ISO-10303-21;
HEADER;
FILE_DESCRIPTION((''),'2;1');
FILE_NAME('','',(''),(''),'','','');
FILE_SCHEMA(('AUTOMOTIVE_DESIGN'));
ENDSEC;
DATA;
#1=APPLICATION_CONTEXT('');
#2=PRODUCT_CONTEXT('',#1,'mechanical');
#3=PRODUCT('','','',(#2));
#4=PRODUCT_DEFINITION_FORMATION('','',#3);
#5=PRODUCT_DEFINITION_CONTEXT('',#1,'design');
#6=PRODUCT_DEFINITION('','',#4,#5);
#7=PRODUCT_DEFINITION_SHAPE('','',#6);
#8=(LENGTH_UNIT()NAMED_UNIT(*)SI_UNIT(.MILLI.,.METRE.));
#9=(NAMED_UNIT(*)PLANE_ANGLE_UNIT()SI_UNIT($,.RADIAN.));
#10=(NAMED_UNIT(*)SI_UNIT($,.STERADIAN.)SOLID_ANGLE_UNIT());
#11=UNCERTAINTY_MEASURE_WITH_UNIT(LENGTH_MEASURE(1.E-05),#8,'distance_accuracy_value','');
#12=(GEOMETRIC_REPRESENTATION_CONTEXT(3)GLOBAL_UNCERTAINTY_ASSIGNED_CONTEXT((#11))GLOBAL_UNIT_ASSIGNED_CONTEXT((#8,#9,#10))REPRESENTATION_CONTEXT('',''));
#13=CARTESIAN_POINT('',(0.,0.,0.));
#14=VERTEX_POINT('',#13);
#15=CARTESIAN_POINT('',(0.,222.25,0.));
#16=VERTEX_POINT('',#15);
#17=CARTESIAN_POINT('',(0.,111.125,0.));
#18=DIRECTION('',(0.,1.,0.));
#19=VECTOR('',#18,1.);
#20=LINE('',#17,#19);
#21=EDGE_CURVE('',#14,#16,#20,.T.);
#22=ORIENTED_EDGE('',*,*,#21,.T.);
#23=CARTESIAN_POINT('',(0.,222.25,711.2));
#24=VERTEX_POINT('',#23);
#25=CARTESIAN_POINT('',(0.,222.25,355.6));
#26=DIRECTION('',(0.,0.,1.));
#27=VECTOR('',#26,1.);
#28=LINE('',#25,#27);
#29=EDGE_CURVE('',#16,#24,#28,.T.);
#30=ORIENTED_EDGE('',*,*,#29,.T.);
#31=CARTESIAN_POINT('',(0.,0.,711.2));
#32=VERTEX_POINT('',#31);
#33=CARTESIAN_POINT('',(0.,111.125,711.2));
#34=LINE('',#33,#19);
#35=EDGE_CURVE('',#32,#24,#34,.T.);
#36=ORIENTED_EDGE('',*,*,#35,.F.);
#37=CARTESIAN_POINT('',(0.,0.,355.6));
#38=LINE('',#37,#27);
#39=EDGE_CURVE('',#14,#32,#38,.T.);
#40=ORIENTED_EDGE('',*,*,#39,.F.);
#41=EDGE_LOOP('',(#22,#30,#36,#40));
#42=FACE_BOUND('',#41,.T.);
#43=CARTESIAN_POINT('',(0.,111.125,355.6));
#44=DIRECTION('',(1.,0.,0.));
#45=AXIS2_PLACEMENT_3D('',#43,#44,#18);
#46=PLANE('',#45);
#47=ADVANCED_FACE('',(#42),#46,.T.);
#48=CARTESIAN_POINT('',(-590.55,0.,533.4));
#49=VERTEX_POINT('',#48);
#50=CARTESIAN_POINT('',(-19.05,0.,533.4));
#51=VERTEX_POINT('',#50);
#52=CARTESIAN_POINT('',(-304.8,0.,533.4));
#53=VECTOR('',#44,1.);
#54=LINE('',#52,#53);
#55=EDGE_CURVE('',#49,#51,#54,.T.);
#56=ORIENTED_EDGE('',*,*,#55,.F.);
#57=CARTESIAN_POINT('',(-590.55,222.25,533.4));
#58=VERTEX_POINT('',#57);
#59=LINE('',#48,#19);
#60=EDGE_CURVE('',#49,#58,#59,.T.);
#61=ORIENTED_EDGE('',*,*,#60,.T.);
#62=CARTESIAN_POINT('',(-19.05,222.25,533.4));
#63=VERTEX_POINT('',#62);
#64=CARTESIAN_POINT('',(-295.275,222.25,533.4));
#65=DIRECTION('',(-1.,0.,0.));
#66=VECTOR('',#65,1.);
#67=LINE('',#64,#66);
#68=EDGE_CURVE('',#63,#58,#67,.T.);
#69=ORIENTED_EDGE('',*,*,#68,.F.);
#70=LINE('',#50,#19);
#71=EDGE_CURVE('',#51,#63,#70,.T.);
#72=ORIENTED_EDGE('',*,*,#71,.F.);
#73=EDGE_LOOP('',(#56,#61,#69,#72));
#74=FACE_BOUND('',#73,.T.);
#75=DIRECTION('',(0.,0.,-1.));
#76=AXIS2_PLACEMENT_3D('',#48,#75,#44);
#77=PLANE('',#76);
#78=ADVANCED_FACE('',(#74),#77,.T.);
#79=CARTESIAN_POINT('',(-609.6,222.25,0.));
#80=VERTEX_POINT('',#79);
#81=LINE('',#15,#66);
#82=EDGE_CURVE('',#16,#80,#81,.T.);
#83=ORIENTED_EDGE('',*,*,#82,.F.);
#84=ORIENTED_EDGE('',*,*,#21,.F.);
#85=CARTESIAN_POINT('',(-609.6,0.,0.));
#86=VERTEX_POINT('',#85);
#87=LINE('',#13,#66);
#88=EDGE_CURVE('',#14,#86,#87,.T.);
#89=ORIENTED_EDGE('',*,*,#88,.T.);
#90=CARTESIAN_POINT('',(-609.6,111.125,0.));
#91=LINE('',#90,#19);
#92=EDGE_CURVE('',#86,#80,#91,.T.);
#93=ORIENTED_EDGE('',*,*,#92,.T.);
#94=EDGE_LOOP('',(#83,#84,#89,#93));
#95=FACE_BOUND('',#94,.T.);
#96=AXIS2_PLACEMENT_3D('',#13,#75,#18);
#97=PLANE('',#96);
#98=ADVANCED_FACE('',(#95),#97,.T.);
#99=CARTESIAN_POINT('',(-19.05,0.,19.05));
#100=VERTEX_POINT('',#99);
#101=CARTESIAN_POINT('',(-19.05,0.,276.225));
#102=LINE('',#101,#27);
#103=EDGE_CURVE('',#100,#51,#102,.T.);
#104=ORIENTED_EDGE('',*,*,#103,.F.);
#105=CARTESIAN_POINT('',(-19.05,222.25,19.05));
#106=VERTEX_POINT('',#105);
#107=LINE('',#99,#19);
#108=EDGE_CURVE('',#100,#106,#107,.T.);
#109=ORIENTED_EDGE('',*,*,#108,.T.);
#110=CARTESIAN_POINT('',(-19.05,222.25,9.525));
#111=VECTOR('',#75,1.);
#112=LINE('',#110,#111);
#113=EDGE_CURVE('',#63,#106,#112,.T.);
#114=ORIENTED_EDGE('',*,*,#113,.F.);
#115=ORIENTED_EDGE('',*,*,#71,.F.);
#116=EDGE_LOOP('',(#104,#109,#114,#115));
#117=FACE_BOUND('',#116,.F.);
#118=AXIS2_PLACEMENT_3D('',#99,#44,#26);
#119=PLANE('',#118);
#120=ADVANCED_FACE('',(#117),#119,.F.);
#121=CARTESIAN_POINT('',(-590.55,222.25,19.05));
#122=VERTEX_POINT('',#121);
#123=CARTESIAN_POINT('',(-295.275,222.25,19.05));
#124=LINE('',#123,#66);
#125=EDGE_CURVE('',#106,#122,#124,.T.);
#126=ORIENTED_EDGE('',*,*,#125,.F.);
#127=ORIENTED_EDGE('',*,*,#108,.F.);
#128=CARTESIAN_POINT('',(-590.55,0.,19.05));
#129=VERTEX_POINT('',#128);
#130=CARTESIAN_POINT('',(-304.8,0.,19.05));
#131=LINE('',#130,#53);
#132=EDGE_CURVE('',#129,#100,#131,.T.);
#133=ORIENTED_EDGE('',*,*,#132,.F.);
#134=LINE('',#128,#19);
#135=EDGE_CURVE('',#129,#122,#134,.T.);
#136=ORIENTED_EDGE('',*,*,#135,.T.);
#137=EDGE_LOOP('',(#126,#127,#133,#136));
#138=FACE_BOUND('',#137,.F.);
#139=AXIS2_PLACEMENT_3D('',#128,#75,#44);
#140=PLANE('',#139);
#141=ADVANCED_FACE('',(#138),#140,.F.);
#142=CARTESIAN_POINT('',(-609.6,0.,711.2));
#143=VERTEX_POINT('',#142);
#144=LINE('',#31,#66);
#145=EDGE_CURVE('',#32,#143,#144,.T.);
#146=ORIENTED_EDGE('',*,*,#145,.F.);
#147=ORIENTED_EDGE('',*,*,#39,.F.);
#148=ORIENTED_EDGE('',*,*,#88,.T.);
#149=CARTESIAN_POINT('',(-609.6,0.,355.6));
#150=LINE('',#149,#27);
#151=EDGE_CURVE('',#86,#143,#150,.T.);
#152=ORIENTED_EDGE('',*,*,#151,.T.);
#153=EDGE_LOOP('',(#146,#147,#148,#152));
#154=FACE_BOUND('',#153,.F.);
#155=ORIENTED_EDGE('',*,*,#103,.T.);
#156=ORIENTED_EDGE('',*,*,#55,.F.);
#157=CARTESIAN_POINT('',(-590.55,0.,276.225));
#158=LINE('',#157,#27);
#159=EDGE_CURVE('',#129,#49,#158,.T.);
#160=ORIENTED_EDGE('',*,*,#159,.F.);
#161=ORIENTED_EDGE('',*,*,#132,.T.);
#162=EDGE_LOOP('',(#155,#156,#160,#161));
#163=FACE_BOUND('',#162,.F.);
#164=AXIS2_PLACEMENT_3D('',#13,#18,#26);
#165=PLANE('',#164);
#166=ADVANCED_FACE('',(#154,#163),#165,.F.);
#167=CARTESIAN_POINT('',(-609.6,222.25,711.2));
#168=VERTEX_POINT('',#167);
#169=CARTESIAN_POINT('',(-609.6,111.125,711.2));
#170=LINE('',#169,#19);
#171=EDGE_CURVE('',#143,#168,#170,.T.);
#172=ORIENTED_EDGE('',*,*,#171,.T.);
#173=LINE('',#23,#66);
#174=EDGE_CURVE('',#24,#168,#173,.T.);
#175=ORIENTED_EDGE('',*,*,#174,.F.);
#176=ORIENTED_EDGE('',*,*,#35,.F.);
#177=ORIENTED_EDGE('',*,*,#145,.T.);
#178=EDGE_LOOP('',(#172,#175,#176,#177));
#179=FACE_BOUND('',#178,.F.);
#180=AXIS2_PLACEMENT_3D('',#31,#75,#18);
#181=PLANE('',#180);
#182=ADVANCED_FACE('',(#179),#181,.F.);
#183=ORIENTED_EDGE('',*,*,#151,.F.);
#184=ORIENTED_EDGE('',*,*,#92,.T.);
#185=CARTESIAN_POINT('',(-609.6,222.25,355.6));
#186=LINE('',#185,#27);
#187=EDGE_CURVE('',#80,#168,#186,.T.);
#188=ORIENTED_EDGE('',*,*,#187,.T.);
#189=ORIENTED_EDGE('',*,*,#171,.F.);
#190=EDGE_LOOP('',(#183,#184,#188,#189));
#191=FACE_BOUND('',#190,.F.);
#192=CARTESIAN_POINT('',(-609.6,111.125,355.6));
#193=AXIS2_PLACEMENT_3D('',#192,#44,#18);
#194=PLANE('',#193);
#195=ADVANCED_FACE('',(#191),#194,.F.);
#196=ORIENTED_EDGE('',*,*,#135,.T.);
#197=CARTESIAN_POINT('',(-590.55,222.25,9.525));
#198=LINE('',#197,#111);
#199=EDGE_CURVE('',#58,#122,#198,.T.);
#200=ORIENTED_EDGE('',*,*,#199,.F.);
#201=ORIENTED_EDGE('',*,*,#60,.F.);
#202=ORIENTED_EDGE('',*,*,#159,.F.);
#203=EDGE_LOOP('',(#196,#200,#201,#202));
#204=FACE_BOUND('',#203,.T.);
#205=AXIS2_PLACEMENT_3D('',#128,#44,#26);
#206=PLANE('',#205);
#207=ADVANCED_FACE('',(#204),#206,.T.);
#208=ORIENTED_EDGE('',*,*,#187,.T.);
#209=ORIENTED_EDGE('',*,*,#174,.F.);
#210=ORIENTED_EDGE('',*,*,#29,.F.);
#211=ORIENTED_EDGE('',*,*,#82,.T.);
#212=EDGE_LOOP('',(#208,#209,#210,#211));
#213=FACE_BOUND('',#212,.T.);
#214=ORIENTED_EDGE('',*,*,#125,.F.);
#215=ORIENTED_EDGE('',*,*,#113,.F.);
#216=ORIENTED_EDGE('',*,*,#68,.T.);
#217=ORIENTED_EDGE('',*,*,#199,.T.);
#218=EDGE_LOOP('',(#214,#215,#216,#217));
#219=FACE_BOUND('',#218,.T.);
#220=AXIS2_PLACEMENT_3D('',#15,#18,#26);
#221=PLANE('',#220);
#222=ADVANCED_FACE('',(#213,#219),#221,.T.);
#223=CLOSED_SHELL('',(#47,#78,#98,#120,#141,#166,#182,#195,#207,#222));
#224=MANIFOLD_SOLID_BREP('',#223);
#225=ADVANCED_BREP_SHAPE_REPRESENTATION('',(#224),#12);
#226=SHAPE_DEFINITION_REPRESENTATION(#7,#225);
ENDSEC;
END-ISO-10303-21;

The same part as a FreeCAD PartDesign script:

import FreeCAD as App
import Part
import Sketcher

V = App.Vector
Q = App.Units.Quantity

doc = App.newDocument("Part")
params = doc.addObject("Spreadsheet::Sheet", "Params")
for row, (alias, value) in enumerate([
    ("sketch1_height", "28 in"),
    ("sketch1_width", "8.75 in"),
    ("pad1_length", "24 in"),
    ("sketch2_width", "22.5 in"),
    ("sketch2_height", "20.25 in"),
    ("pocket1_length", "11.25 in"),
    ("sketch3_width", "22.5 in"),
    ("sketch3_height", "2.5 in"),
    ("pocket2_length", "6.25 in"),
], start=1):
    params.set(f"A{row}", alias)
    params.set(f"B{row}", "=" + value)
    params.setAlias(f"B{row}", alias)

body = doc.addObject("PartDesign::Body", "Body")

# Sketch on YZ plane
sketch1 = doc.addObject("Sketcher::SketchObject", "Sketch")
body.addObject(sketch1)
sketch1.AttachmentSupport = (doc.YZ_Plane, [""])
sketch1.MapMode = "FlatFace"
sketch1.addGeometry([
    Part.LineSegment(V(0, 711, 0), V(0, 0, 0)),
    Part.LineSegment(V(0, 0, 0), V(222, 0, 0)),
    Part.LineSegment(V(222, 0, 0), V(222, 711, 0)),
    Part.LineSegment(V(222, 711, 0), V(0, 711, 0)),
], False)
sketch1.addConstraint([
    Sketcher.Constraint("Coincident", 0, 2, 1, 1),
    Sketcher.Constraint("Coincident", 1, 2, 2, 1),
    Sketcher.Constraint("Coincident", 2, 2, 3, 1),
    Sketcher.Constraint("Coincident", 3, 2, 0, 1),
    Sketcher.Constraint("Vertical", 0),
    Sketcher.Constraint("Horizontal", 1),
    Sketcher.Constraint("Vertical", 2),
    Sketcher.Constraint("Horizontal", 3),
    Sketcher.Constraint("Coincident", 0, 2, -1, 1),
    Sketcher.Constraint("DistanceY", 0, 2, 0, 1, Q("28 in")),
    Sketcher.Constraint("DistanceX", 1, 1, 1, 2, Q("8.75 in")),
])
sketch1.setExpression("Constraints[9]", "Params.sketch1_height")
sketch1.setExpression("Constraints[10]", "Params.sketch1_width")
pad1 = doc.addObject("PartDesign::Pad", "Pad")
body.addObject(pad1)
pad1.Profile = sketch1
pad1.setExpression("Length", "Params.pad1_length")
pad1.Reversed = True

# Sketch on XZ plane
sketch2 = doc.addObject("Sketcher::SketchObject", "Sketch001")
body.addObject(sketch2)
sketch2.AttachmentSupport = (doc.XZ_Plane, [""])
sketch2.MapMode = "FlatFace"
sketch2.addGeometry([
    Part.LineSegment(V(-591, 533, 0), V(-591, 19, 0)),
    Part.LineSegment(V(-591, 19, 0), V(-19, 19, 0)),
    Part.LineSegment(V(-19, 19, 0), V(-19, 533, 0)),
    Part.LineSegment(V(-19, 533, 0), V(-591, 533, 0)),
], False)
sketch2.addConstraint([
    Sketcher.Constraint("Coincident", 0, 2, 1, 1),
    Sketcher.Constraint("Coincident", 1, 2, 2, 1),
    Sketcher.Constraint("Coincident", 2, 2, 3, 1),
    Sketcher.Constraint("Coincident", 3, 2, 0, 1),
    Sketcher.Constraint("Vertical", 0),
    Sketcher.Constraint("Horizontal", 1),
    Sketcher.Constraint("Vertical", 2),
    Sketcher.Constraint("Horizontal", 3),
    Sketcher.Constraint("DistanceX", 1, 1, 1, 2, Q("22.5 in")),
    Sketcher.Constraint("DistanceY", -1, 1, 2, 2, Q("21 in")),
    Sketcher.Constraint("DistanceY", 0, 2, 0, 1, Q("20.25 in")),
    Sketcher.Constraint("DistanceX", 0, 2, -1, 1, Q("23.25 in")),
])
sketch2.setExpression("Constraints[8]", "Params.sketch2_width")
sketch2.setExpression("Constraints[10]", "Params.sketch2_height")
pocket1 = doc.addObject("PartDesign::Pocket", "Pocket")
body.addObject(pocket1)
pocket1.Profile = sketch2
pocket1.setExpression("Length", "Params.pocket1_length")

# Sketch on XY plane
sketch3 = doc.addObject("Sketcher::SketchObject", "Sketch002")
body.addObject(sketch3)
sketch3.AttachmentSupport = (doc.XY_Plane, [""])
sketch3.MapMode = "FlatFace"
sketch3.AttachmentOffset = App.Placement(V(0, 0, 21 * 25.4), App.Rotation())
sketch3.addGeometry([
    Part.LineSegment(V(-591, 222, 0), V(-591, 286, 0)),
    Part.LineSegment(V(-591, 286, 0), V(-19, 286, 0)),
    Part.LineSegment(V(-19, 286, 0), V(-19, 222, 0)),
    Part.LineSegment(V(-19, 222, 0), V(-591, 222, 0)),
], False)
sketch3.addConstraint([
    Sketcher.Constraint("Coincident", 0, 2, 1, 1),
    Sketcher.Constraint("Coincident", 1, 2, 2, 1),
    Sketcher.Constraint("Coincident", 2, 2, 3, 1),
    Sketcher.Constraint("Coincident", 3, 2, 0, 1),
    Sketcher.Constraint("Vertical", 0),
    Sketcher.Constraint("Horizontal", 1),
    Sketcher.Constraint("Vertical", 2),
    Sketcher.Constraint("Horizontal", 3),
    Sketcher.Constraint("DistanceX", 1, 1, 1, 2, Q("22.5 in")),
    Sketcher.Constraint("DistanceY", 0, 1, 0, 2, Q("2.5 in")),
    Sketcher.Constraint("DistanceX", 0, 2, -1, 1, Q("23.25 in")),
    Sketcher.Constraint("DistanceY", -1, 1, 0, 2, Q("11.25 in")),
])
sketch3.setExpression("Constraints[8]", "Params.sketch3_width")
sketch3.setExpression("Constraints[9]", "Params.sketch3_height")
pocket2 = doc.addObject("PartDesign::Pocket", "Pocket001")
body.addObject(pocket2)
pocket2.Profile = sketch3
pocket2.setExpression("Length", "Params.pocket2_length")
pocket2.Reversed = True

doc.recompute()
